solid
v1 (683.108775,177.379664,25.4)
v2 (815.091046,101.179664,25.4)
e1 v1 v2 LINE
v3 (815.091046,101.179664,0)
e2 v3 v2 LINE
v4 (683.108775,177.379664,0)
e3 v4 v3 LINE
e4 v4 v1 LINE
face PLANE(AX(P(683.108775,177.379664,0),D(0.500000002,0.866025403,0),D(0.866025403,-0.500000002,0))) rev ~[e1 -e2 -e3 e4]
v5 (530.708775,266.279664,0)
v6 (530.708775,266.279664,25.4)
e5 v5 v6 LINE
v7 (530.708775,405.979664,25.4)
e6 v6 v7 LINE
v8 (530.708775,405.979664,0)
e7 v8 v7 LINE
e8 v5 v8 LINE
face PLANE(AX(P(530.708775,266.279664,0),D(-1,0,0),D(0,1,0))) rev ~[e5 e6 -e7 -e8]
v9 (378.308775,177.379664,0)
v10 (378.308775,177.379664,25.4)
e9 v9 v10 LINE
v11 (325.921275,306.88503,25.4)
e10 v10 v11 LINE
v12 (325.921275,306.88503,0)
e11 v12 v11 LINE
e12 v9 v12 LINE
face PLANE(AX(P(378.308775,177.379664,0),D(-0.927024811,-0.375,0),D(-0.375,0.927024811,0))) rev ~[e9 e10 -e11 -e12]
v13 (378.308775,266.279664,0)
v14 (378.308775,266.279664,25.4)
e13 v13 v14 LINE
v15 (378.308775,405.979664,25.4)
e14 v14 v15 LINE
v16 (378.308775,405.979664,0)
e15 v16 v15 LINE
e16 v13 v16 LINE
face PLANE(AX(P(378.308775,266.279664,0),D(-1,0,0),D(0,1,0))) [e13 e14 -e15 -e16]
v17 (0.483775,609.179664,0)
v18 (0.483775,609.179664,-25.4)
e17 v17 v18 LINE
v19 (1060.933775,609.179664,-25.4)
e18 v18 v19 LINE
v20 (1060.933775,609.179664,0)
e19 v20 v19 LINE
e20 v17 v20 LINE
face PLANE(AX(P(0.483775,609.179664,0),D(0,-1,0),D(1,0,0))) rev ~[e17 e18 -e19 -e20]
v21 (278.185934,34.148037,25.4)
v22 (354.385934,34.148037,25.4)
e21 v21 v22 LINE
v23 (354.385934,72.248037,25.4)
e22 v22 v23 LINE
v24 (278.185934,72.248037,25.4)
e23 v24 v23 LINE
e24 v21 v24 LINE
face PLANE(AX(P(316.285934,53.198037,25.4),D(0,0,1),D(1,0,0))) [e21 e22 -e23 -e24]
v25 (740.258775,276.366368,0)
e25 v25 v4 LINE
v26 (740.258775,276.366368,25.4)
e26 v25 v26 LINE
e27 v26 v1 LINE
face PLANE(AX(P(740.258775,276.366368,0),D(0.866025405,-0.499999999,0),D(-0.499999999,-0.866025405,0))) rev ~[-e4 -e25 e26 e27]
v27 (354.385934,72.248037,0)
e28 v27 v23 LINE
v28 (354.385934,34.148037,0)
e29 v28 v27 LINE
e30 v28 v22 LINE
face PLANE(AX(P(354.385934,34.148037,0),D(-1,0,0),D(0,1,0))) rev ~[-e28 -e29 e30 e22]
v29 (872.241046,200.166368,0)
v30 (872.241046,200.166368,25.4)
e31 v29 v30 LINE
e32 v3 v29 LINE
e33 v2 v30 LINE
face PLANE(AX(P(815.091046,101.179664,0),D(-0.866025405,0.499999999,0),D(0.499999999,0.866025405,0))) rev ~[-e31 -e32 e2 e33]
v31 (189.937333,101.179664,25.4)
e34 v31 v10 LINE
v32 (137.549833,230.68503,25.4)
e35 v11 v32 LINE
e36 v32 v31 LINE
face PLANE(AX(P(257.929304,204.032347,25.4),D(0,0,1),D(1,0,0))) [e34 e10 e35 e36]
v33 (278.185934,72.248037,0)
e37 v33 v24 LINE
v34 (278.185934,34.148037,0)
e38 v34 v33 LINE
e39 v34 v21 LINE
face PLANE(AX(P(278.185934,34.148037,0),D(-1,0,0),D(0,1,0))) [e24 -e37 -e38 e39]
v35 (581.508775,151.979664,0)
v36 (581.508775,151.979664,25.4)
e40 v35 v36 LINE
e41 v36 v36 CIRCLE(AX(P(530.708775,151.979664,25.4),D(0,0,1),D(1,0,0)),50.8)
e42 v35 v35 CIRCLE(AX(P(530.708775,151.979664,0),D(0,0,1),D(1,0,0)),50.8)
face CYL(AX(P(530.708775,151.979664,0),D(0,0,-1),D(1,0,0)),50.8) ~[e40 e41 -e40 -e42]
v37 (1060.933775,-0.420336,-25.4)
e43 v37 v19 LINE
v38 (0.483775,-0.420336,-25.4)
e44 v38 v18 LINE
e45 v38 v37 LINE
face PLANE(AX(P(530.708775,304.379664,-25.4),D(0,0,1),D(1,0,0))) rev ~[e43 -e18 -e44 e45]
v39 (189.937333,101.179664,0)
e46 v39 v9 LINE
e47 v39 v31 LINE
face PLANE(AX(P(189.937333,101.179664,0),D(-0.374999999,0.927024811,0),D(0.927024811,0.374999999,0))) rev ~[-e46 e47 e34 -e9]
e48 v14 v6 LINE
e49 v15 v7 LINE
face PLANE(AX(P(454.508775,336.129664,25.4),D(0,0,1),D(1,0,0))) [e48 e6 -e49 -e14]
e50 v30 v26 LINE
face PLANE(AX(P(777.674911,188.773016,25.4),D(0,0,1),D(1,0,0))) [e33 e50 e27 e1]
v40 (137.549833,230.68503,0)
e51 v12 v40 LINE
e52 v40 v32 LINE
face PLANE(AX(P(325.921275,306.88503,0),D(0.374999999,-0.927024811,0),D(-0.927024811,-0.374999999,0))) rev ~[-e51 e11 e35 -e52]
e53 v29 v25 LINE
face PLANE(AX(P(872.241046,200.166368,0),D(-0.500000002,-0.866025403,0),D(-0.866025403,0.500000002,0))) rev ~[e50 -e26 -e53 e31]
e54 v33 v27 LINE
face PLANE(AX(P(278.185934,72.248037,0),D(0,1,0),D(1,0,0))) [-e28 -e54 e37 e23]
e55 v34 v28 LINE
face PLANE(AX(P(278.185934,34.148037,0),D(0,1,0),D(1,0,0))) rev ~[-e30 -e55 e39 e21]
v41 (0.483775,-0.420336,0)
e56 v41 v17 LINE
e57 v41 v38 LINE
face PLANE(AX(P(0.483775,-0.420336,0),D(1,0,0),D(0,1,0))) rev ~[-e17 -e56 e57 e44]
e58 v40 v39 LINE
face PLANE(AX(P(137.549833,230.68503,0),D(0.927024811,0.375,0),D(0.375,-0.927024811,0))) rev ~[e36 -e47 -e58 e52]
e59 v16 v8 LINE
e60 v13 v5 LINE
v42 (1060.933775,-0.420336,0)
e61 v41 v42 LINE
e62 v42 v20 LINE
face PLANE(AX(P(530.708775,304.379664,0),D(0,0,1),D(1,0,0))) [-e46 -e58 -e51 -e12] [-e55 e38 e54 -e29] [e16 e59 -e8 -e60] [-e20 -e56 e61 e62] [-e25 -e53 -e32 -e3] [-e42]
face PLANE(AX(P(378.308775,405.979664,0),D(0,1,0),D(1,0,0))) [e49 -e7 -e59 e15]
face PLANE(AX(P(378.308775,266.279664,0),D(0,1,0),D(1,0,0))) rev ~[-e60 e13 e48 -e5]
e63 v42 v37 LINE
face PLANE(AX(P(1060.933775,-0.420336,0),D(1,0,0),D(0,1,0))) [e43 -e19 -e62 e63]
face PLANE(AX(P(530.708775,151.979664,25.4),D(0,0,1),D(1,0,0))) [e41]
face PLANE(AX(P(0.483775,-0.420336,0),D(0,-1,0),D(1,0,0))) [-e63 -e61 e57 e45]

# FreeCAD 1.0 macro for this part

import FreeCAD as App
import Part
import Sketcher

V = App.Vector
Q = App.Units.Quantity

doc = App.newDocument("Part")
body = doc.addObject("PartDesign::Body", "Body")

# Sketch on XY plane
sketch1 = doc.addObject("Sketcher::SketchObject", "Sketch")
body.addObject(sketch1)
sketch1.AttachmentSupport = (doc.XY_Plane, [""])
sketch1.MapMode = "FlatFace"
sketch1.addGeometry(Part.LineSegment(V(0.483775, 609.179664, 0), V(0.483775, -0.420336, 0)), False)
sketch1.addGeometry(Part.LineSegment(V(0.483775, -0.420336, 0), V(1060.933775, -0.420336, 0)), False)
sketch1.addGeometry(Part.LineSegment(V(1060.933775, -0.420336, 0), V(1060.933775, 609.179664, 0)), False)
sketch1.addGeometry(Part.LineSegment(V(1060.933775, 609.179664, 0), V(0.483775, 609.179664, 0)), False)
sketch1.addConstraint(Sketcher.Constraint("Coincident", 0, 2, 1, 1))
sketch1.addConstraint(Sketcher.Constraint("Coincident", 1, 2, 2, 1))
sketch1.addConstraint(Sketcher.Constraint("Coincident", 2, 2, 3, 1))
sketch1.addConstraint(Sketcher.Constraint("Coincident", 3, 2, 0, 1))
sketch1.addConstraint(Sketcher.Constraint("Vertical", 0))
sketch1.addConstraint(Sketcher.Constraint("Horizontal", 1))
sketch1.addConstraint(Sketcher.Constraint("Vertical", 2))
sketch1.addConstraint(Sketcher.Constraint("Horizontal", 3))
sketch1.addConstraint(Sketcher.Constraint("DistanceY", 0, 2, 0, 1, Q("24 in")))
sketch1.addConstraint(Sketcher.Constraint("DistanceX", 1, 1, 1, 2, Q("41.75 in")))
sketch1.addConstraint(Sketcher.Constraint("DistanceX", -1, 1, 0, 2, 0.483775))
sketch1.addConstraint(Sketcher.Constraint("DistanceY", 0, 2, -1, 1, 0.420336))
pad1 = doc.addObject("PartDesign::Pad", "Pad")
body.addObject(pad1)
pad1.Profile = sketch1
pad1.Length = Q("1 in")
pad1.Reversed = True

# Sketch on XY plane
sketch2 = doc.addObject("Sketcher::SketchObject", "Sketch001")
body.addObject(sketch2)
sketch2.AttachmentSupport = (doc.XY_Plane, [""])
sketch2.MapMode = "FlatFace"
sketch2.addGeometry(Part.LineSegment(V(378.308775, 177.379664, 0), V(325.921275, 306.88503, 0)), False)
sketch2.addGeometry(Part.LineSegment(V(325.921275, 306.88503, 0), V(137.549833, 230.68503, 0)), False)
sketch2.addGeometry(Part.LineSegment(V(137.549833, 230.68503, 0), V(189.937333, 101.179664, 0)), False)
sketch2.addGeometry(Part.LineSegment(V(189.937333, 101.179664, 0), V(378.308775, 177.379664, 0)), False)
sketch2.addGeometry(Part.LineSegment(V(815.091046, 101.179664, 0), V(872.241046, 200.166368, 0)), False)
sketch2.addGeometry(Part.LineSegment(V(872.241046, 200.166368, 0), V(740.258775, 276.366368, 0)), False)
sketch2.addGeometry(Part.LineSegment(V(740.258775, 276.366368, 0), V(683.108775, 177.379664, 0)), False)
sketch2.addGeometry(Part.LineSegment(V(683.108775, 177.379664, 0), V(815.091046, 101.179664, 0)), False)
sketch2.addGeometry(Part.Circle(V(530.708775, 151.979664, 0), V(0, 0, 1), 50.8), False)
sketch2.addGeometry(Part.LineSegment(V(378.308775, 405.979664, 0), V(378.308775, 266.279664, 0)), False)
sketch2.addGeometry(Part.LineSegment(V(378.308775, 266.279664, 0), V(530.708775, 266.279664, 0)), False)
sketch2.addGeometry(Part.LineSegment(V(530.708775, 266.279664, 0), V(530.708775, 405.979664, 0)), False)
sketch2.addGeometry(Part.LineSegment(V(530.708775, 405.979664, 0), V(378.308775, 405.979664, 0)), False)
sketch2.addGeometry(Part.LineSegment(V(278.185934, 72.248037, 0), V(278.185934, 34.148037, 0)), False)
sketch2.addGeometry(Part.LineSegment(V(278.185934, 34.148037, 0), V(354.385934, 34.148037, 0)), False)
sketch2.addGeometry(Part.LineSegment(V(354.385934, 34.148037, 0), V(354.385934, 72.248037, 0)), False)
sketch2.addGeometry(Part.LineSegment(V(354.385934, 72.248037, 0), V(278.185934, 72.248037, 0)), False)
sketch2.addConstraint(Sketcher.Constraint("Coincident", 0, 2, 1, 1))
sketch2.addConstraint(Sketcher.Constraint("Coincident", 1, 2, 2, 1))
sketch2.addConstraint(Sketcher.Constraint("Coincident", 2, 2, 3, 1))
sketch2.addConstraint(Sketcher.Constraint("Coincident", 3, 2, 0, 1))
sketch2.addConstraint(Sketcher.Constraint("Coincident", 4, 2, 5, 1))
sketch2.addConstraint(Sketcher.Constraint("Coincident", 5, 2, 6, 1))
sketch2.addConstraint(Sketcher.Constraint("Coincident", 6, 2, 7, 1))
sketch2.addConstraint(Sketcher.Constraint("Coincident", 7, 2, 4, 1))
sketch2.addConstraint(Sketcher.Constraint("Coincident", 9, 2, 10, 1))
sketch2.addConstraint(Sketcher.Constraint("Coincident", 10, 2, 11, 1))
sketch2.addConstraint(Sketcher.Constraint("Coincident", 11, 2, 12, 1))
sketch2.addConstraint(Sketcher.Constraint("Coincident", 12, 2, 9, 1))
sketch2.addConstraint(Sketcher.Constraint("Coincident", 13, 2, 14, 1))
sketch2.addConstraint(Sketcher.Constraint("Coincident", 14, 2, 15, 1))
sketch2.addConstraint(Sketcher.Constraint("Coincident", 15, 2, 16, 1))
sketch2.addConstraint(Sketcher.Constraint("Coincident", 16, 2, 13, 1))
sketch2.addConstraint(Sketcher.Constraint("Vertical", 9))
sketch2.addConstraint(Sketcher.Constraint("Horizontal", 10))
sketch2.addConstraint(Sketcher.Constraint("Vertical", 11))
sketch2.addConstraint(Sketcher.Constraint("Horizontal", 12))
sketch2.addConstraint(Sketcher.Constraint("Vertical", 13))
sketch2.addConstraint(Sketcher.Constraint("Horizontal", 14))
sketch2.addConstraint(Sketcher.Constraint("Vertical", 15))
sketch2.addConstraint(Sketcher.Constraint("Horizontal", 16))
sketch2.addConstraint(Sketcher.Constraint("Perpendicular", 0, 1))
sketch2.addConstraint(Sketcher.Constraint("Perpendicular", 1, 2))
sketch2.addConstraint(Sketcher.Constraint("Perpendicular", 2, 3))
sketch2.addConstraint(Sketcher.Constraint("Perpendicular", 4, 5))
sketch2.addConstraint(Sketcher.Constraint("Perpendicular", 5, 6))
sketch2.addConstraint(Sketcher.Constraint("Perpendicular", 6, 7))
sketch2.addConstraint(Sketcher.Constraint("Horizontal", 3, 2, 6, 2))
sketch2.addConstraint(Sketcher.Constraint("Horizontal", 2, 2, 7, 2))
sketch2.addConstraint(Sketcher.Constraint("Vertical", 3, 2, 9, 2))
sketch2.addConstraint(Sketcher.Constraint("Vertical", 8, 3, 10, 2))
sketch2.addConstraint(Sketcher.Constraint("Diameter", 8, Q("4 in")))
sketch2.addConstraint(Sketcher.Constraint("DistanceX", 10, 1, 10, 2, Q("6 in")))
sketch2.addConstraint(Sketcher.Constraint("DistanceX", 14, 1, 14, 2, Q("3 in")))
sketch2.addConstraint(Sketcher.Constraint("Distance", 1, Q("8 in")))
sketch2.addConstraint(Sketcher.Constraint("Distance", 5, Q("6 in")))
sketch2.addConstraint(Sketcher.Constraint("DistanceY", 9, 2, 9, 1, Q("5.5 in")))
sketch2.addConstraint(Sketcher.Constraint("DistanceY", 13, 2, 13, 1, Q("1.5 in")))
sketch2.addConstraint(Sketcher.Constraint("Angle", 4, Q("60 deg")))
sketch2.addConstraint(Sketcher.Constraint("DistanceY", 2, 2, 8, 3, Q("2 in")))
sketch2.addConstraint(Sketcher.Constraint("DistanceX", 8, 3, 6, 2, Q("6 in")))
sketch2.addConstraint(Sketcher.Constraint("DistanceY", 8, 3, 11, 2, Q("10 in")))
sketch2.addConstraint(Sketcher.Constraint("Distance", 0, Q("5.5 in")))
sketch2.addConstraint(Sketcher.Constraint("Distance", 4, Q("4.5 in")))
sketch2.addConstraint(Sketcher.Constraint("DistanceX", 2, 2, 13, 2, 88.248601))
sketch2.addConstraint(Sketcher.Constraint("DistanceY", -1, 1, 0, 2, 306.88503))
sketch2.addConstraint(Sketcher.Constraint("DistanceX", -1, 1, 8, 3, 530.708775))
sketch2.addConstraint(Sketcher.Constraint("DistanceY", -1, 1, 13, 2, 34.148037))
pad2 = doc.addObject("PartDesign::Pad", "Pad001")
body.addObject(pad2)
pad2.Profile = sketch2
pad2.Length = Q("1 in")

doc.recompute()
